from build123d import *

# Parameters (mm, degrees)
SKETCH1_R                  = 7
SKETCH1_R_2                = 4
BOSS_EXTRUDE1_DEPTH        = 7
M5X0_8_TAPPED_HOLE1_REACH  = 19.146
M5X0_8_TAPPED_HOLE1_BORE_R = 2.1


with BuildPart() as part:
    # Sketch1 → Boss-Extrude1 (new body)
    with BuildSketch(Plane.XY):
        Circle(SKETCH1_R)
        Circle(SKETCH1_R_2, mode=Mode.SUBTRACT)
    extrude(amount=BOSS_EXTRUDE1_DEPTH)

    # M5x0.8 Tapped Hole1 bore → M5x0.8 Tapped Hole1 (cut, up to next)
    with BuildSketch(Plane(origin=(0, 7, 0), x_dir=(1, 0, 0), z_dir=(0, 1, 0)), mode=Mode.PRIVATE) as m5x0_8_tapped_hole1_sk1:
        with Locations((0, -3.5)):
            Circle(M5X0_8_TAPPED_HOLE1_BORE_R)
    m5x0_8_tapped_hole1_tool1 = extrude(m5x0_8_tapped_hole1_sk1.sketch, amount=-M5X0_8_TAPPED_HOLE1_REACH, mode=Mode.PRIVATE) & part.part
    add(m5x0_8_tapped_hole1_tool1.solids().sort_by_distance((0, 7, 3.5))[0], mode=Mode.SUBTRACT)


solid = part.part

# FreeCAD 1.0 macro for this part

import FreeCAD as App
import Part
import Sketcher
from FreeCAD import Vector

doc = App.newDocument("Part")
body = doc.addObject("PartDesign::Body", "Body")

# Sketch on XY plane
sketch1 = doc.addObject("Sketcher::SketchObject", "Sketch")
body.addObject(sketch1)
sketch1.AttachmentSupport = (doc.XY_Plane, [""])
sketch1.MapMode = "FlatFace"
sketch1.addGeometry(Part.Circle(Vector(0, 0, 0), Vector(0, 0, 1), 7), False)
sketch1.addGeometry(Part.Circle(Vector(0, 0, 0), Vector(0, 0, 1), 4), False)
sketch1.addConstraint(Sketcher.Constraint("Coincident", 0, 3, -1, 1))
sketch1.addConstraint(Sketcher.Constraint("Coincident", 1, 3, -1, 1))
sketch1.addConstraint(Sketcher.Constraint("Diameter", 0, 14.0))
sketch1.addConstraint(Sketcher.Constraint("Diameter", 1, 8.0))
pad1 = doc.addObject("PartDesign::Pad", "Pad")
body.addObject(pad1)
pad1.Profile = sketch1
pad1.Length = 7

# Sketch on XZ plane
sketch2 = doc.addObject("Sketcher::SketchObject", "Sketch001")
body.addObject(sketch2)
sketch2.AttachmentSupport = (doc.XZ_Plane, [""])
sketch2.MapMode = "FlatFace"
sketch2.AttachmentOffset = App.Placement(Vector(0, 0, -7), App.Rotation())
sketch2.addGeometry(Part.Circle(Vector(0, 3.5, 0), Vector(0, 0, 1), 2.1), False)
sketch2.addConstraint(Sketcher.Constraint("PointOnObject", 0, 3, -2))
sketch2.addConstraint(Sketcher.Constraint("Diameter", 0, 4.2))
sketch2.addConstraint(Sketcher.Constraint("DistanceY", -1, 1, 0, 3, 3.5))
pocket1 = doc.addObject("PartDesign::Pocket", "Pocket")
body.addObject(pocket1)
pocket1.Profile = sketch2
pocket1.Type = "UpToFirst"
pocket1.Reversed = True

doc.recompute()
